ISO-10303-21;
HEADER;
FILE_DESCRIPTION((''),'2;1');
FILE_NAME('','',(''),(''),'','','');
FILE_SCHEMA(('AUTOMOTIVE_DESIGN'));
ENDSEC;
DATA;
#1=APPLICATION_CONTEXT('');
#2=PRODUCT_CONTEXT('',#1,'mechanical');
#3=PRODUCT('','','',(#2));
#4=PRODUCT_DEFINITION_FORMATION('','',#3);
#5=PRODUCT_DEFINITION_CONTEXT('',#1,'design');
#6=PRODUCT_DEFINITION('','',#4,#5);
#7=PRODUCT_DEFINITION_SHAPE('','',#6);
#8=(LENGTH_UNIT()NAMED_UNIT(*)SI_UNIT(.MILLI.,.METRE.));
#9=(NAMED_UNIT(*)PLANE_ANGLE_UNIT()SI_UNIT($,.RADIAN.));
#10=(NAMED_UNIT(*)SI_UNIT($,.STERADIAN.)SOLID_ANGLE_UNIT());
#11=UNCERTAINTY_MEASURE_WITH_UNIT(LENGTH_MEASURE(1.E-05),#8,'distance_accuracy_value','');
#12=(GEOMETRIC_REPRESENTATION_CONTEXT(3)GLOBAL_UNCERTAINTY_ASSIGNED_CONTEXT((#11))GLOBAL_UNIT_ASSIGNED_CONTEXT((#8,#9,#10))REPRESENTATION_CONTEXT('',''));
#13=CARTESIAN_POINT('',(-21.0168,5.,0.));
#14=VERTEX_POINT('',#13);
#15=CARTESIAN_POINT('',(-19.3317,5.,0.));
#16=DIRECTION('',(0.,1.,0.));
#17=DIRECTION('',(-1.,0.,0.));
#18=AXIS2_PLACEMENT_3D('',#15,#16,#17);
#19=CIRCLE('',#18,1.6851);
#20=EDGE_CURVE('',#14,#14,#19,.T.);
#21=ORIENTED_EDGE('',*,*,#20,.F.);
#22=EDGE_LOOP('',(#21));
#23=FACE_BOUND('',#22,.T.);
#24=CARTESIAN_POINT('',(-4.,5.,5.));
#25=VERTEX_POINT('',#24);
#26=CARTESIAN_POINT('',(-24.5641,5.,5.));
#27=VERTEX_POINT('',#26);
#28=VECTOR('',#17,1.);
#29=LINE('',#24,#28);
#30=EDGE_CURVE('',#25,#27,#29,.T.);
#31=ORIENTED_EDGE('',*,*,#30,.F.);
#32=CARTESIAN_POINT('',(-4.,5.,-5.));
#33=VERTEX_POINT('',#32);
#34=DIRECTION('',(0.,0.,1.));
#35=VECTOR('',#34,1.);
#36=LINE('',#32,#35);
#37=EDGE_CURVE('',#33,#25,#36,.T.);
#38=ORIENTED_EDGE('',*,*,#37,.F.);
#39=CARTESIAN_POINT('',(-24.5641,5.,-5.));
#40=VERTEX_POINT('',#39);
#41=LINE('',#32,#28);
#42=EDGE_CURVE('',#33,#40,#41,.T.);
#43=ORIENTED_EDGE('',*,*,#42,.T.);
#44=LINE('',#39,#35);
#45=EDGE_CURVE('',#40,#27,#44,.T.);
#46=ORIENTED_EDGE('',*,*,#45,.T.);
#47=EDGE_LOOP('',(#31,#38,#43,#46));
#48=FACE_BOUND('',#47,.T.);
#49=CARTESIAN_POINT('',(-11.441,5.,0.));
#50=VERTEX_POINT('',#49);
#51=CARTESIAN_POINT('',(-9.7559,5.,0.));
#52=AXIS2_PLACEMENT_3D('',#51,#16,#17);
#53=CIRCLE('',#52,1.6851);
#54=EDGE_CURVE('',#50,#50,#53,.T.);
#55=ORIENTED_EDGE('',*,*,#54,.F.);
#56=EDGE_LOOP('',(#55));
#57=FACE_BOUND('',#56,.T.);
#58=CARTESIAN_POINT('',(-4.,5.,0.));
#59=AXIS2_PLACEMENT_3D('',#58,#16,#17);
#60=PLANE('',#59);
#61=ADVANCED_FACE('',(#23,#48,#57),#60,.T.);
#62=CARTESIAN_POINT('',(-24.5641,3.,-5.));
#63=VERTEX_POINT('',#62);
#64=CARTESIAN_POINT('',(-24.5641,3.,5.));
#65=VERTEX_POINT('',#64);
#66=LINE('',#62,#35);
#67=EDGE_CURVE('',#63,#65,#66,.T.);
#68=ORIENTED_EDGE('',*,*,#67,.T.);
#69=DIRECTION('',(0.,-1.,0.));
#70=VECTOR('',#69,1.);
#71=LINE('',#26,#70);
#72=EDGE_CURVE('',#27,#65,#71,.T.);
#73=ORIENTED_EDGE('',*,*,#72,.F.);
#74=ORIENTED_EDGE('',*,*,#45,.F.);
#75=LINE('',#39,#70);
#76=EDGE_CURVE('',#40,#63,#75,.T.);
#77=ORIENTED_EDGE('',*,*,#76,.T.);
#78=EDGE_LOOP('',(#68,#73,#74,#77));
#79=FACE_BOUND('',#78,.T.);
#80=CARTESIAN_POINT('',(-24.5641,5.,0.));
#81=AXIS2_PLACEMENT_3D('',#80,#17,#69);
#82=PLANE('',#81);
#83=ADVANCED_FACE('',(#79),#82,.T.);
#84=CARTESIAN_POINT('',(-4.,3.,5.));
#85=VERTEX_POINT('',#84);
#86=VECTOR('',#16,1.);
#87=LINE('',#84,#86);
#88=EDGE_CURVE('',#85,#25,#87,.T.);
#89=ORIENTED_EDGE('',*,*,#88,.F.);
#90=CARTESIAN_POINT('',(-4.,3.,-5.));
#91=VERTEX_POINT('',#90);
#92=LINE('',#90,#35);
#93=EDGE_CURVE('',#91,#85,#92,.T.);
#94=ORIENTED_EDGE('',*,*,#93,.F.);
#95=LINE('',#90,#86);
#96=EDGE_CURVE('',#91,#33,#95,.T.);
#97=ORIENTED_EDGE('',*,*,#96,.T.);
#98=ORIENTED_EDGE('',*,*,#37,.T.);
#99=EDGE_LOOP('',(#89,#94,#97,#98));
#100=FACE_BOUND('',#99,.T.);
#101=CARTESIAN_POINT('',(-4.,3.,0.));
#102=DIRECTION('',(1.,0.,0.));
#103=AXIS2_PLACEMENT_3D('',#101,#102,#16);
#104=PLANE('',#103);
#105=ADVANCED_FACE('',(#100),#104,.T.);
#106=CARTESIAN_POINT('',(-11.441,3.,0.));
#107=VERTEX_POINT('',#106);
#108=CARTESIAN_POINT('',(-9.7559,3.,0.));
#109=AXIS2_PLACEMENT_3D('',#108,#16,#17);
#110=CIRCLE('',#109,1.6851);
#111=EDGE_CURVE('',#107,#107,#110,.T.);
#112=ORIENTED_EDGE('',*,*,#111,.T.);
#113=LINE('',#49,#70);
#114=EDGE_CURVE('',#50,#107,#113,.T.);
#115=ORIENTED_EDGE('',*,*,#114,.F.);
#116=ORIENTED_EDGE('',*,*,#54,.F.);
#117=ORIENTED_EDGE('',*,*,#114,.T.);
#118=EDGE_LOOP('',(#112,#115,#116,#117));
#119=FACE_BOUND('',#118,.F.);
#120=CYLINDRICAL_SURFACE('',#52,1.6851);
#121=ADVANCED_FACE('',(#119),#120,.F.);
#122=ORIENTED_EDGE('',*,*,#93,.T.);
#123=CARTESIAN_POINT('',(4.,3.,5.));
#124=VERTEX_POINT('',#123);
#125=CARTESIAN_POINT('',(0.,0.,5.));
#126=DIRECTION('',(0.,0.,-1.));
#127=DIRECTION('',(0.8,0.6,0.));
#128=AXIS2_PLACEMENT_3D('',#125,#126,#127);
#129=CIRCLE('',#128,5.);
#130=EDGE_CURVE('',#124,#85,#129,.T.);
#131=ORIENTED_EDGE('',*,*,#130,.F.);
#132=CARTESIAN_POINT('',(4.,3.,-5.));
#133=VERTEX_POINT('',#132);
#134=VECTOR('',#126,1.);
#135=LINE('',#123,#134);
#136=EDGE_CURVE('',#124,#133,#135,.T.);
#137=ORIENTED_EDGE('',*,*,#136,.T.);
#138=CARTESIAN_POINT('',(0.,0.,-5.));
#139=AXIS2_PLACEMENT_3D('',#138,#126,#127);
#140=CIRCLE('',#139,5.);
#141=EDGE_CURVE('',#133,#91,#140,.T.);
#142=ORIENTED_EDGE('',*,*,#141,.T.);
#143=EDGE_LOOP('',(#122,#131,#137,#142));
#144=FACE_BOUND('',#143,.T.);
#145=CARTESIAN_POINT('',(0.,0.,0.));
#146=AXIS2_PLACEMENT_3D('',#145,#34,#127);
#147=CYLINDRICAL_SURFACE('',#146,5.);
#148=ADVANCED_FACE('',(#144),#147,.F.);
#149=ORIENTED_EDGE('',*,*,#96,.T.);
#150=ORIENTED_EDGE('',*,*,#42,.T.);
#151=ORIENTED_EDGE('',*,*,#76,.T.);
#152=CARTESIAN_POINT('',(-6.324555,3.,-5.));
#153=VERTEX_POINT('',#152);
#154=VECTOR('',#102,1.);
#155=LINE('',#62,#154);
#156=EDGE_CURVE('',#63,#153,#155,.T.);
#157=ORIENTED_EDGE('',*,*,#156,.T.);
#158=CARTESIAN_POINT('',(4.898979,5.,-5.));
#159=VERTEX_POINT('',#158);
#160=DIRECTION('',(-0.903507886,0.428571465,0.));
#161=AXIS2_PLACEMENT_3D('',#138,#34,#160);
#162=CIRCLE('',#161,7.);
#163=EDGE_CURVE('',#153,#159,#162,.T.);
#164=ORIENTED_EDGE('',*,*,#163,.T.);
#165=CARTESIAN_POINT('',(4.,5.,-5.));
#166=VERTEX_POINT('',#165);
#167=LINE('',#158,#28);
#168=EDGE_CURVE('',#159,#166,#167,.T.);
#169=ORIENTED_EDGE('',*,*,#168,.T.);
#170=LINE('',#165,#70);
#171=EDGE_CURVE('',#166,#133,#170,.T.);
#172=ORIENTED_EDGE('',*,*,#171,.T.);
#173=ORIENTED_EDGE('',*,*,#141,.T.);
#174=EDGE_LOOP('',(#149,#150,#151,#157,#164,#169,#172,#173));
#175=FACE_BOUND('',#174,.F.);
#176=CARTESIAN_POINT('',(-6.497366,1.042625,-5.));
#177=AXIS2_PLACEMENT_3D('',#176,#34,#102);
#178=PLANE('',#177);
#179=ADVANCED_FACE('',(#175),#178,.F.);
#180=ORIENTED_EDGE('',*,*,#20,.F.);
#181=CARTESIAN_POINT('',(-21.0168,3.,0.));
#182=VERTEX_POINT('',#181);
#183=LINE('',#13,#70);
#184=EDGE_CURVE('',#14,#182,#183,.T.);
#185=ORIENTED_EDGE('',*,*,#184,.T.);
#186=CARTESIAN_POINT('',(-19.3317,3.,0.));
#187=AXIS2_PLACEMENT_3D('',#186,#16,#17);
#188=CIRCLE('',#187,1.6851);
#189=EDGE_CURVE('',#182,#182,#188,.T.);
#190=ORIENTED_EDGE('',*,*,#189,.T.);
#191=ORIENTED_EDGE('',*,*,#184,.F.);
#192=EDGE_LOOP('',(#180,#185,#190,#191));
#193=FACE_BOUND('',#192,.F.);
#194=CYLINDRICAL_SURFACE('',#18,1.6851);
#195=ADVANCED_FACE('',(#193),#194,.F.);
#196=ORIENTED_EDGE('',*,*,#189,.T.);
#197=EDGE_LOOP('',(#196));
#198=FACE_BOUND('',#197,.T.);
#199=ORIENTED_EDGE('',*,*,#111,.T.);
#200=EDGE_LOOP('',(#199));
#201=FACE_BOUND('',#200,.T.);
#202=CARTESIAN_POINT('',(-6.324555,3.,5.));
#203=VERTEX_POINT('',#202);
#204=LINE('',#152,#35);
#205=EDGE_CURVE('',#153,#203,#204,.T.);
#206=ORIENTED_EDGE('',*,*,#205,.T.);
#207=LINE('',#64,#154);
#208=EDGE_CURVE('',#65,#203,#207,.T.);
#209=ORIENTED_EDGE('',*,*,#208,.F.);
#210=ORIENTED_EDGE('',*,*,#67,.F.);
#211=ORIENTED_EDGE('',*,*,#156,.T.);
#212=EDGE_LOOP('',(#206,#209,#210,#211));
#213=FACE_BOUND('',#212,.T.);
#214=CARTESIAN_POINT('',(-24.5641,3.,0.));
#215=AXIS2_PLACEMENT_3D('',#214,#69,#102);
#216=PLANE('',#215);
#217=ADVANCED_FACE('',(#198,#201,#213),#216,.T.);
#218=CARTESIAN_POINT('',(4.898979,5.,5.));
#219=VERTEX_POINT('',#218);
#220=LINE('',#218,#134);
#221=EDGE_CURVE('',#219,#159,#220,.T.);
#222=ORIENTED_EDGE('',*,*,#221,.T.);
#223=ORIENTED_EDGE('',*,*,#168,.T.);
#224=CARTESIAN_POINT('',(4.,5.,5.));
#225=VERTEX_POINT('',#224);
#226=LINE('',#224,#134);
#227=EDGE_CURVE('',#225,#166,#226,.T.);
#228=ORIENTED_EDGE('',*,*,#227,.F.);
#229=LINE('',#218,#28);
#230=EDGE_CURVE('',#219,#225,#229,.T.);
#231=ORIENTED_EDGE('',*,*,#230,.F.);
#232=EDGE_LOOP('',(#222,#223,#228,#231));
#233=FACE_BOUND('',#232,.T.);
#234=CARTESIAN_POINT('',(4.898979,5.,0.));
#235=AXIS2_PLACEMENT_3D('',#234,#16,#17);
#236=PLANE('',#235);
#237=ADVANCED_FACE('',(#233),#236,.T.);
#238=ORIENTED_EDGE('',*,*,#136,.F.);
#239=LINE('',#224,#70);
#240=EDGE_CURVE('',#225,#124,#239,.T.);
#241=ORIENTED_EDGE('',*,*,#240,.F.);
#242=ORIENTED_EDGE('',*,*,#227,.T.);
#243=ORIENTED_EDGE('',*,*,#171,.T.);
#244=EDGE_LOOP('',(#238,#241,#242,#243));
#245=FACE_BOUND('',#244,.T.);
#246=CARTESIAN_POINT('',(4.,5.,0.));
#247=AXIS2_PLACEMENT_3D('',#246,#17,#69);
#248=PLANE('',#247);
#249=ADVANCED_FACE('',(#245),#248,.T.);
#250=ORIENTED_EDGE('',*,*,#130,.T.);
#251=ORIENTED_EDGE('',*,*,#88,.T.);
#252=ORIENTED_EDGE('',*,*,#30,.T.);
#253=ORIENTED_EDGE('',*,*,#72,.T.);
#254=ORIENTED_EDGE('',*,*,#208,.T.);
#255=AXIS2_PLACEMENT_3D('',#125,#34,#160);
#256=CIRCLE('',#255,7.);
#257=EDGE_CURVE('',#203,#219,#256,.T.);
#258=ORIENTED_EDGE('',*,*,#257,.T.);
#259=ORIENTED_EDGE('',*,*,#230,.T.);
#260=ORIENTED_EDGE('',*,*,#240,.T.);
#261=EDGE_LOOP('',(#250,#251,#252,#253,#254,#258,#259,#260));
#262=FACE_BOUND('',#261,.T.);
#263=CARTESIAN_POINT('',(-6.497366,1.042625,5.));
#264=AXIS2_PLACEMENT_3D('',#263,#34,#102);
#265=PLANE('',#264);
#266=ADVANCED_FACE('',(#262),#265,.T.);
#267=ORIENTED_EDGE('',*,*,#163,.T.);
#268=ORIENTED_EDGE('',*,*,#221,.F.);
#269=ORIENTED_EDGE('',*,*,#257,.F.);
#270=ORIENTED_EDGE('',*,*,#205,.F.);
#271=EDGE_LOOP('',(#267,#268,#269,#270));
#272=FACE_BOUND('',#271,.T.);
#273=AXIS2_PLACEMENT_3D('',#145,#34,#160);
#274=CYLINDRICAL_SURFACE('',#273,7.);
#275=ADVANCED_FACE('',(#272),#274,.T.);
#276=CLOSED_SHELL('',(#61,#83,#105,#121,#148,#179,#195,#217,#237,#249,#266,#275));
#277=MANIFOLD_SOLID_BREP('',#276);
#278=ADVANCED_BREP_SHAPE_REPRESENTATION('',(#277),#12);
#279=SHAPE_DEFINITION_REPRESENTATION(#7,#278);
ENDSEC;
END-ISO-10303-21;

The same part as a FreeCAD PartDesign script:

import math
import FreeCAD as App
import Part
import Sketcher

V = App.Vector
Q = App.Units.Quantity

doc = App.newDocument("Part")
body = doc.addObject("PartDesign::Body", "Body")

# Sketch on XY plane
sketch1 = body.newObject("Sketcher::SketchObject", "Sketch")
sketch1.AttachmentSupport = (doc.getObject("XY_Plane"), [""])
sketch1.MapMode = "FlatFace"
sketch1.addGeometry([
    Part.ArcOfCircle(Part.Circle(V(0, 0, 0), V(0, 0, 1), 5), math.radians(143.130102), math.radians(396.869898)),  # 0
    Part.LineSegment(V(-4, 3, 0), V(-4, 5, 0)),  # 1
    Part.LineSegment(V(-4, 5, 0), V(-24.5641, 5, 0)),  # 2
    Part.LineSegment(V(-24.5641, 5, 0), V(-24.5641, 3, 0)),  # 3
    Part.LineSegment(V(-24.5641, 3, 0), V(-6.324555, 3, 0)),  # 4
    Part.ArcOfCircle(Part.Circle(V(0, 0, 0), V(0, 0, 1), 7), math.radians(154.623064), math.radians(405.584695)),  # 5
    Part.LineSegment(V(4.898979, 5, 0), V(4, 5, 0)),  # 6
    Part.LineSegment(V(4, 5, 0), V(4, 3, 0)),  # 7
], False)
sketch1.addConstraint([
    Sketcher.Constraint("Coincident", 0, 1, 1, 1),
    Sketcher.Constraint("Coincident", 1, 2, 2, 1),
    Sketcher.Constraint("Coincident", 2, 2, 3, 1),
    Sketcher.Constraint("Coincident", 3, 2, 4, 1),
    Sketcher.Constraint("Coincident", 4, 2, 5, 1),
    Sketcher.Constraint("Coincident", 5, 2, 6, 1),
    Sketcher.Constraint("Coincident", 6, 2, 7, 1),
    Sketcher.Constraint("Coincident", 7, 2, 0, 2),
    Sketcher.Constraint("Vertical", 1),
    Sketcher.Constraint("Horizontal", 2),
    Sketcher.Constraint("Vertical", 3),
    Sketcher.Constraint("Horizontal", 4),
    Sketcher.Constraint("Horizontal", 6),
    Sketcher.Constraint("Vertical", 7),
    Sketcher.Constraint("Coincident", 0, 3, -1, 1),
    Sketcher.Constraint("Coincident", 5, 3, -1, 1),
    Sketcher.Constraint("Symmetric", 1, 2, 6, 2, -2),
    Sketcher.Constraint("Horizontal", 0, 1, 3, 2),
    Sketcher.Constraint("Radius", 0, Q("5 mm")),
    Sketcher.Constraint("Radius", 5, Q("7 mm")),
    Sketcher.Constraint("DistanceY", 1, 1, 1, 2, Q("2 mm")),
    Sketcher.Constraint("DistanceX", 0, 1, -1, 1, Q("4 mm")),
    Sketcher.Constraint("DistanceX", 2, 2, 2, 1, Q("20.5641 mm")),
])
pad1 = body.newObject("PartDesign::Pad", "Pad")
pad1.Profile = sketch1
pad1.Length = 10
pad1.Midplane = True

# Sketch on XZ plane
sketch2 = body.newObject("Sketcher::SketchObject", "Sketch001")
sketch2.AttachmentSupport = (doc.getObject("XZ_Plane"), [""])
sketch2.MapMode = "FlatFace"
sketch2.AttachmentOffset = App.Placement(V(0, 0, -5), App.Rotation())
sketch2.addGeometry([
    Part.Circle(V(-19.3317, 0, 0), V(0, 0, 1), 1.6851),
    Part.Circle(V(-9.7559, 0, 0), V(0, 0, 1), 1.6851),
], False)
sketch2.addConstraint([
    Sketcher.Constraint("Equal", 0, 1),
    Sketcher.Constraint("PointOnObject", 0, 3, -1),
    Sketcher.Constraint("PointOnObject", 1, 3, -1),
    Sketcher.Constraint("Diameter", 0, Q("3.3702 mm")),
    Sketcher.Constraint("DistanceX", 0, 3, -1, 1, Q("19.3317 mm")),
    Sketcher.Constraint("DistanceX", 1, 3, -1, 1, Q("9.7559 mm")),
])
pocket1 = body.newObject("PartDesign::Pocket", "Pocket")
pocket1.Profile = sketch2
pocket1.Type = "ThroughAll"
pocket1.Reversed = True

doc.recompute()
